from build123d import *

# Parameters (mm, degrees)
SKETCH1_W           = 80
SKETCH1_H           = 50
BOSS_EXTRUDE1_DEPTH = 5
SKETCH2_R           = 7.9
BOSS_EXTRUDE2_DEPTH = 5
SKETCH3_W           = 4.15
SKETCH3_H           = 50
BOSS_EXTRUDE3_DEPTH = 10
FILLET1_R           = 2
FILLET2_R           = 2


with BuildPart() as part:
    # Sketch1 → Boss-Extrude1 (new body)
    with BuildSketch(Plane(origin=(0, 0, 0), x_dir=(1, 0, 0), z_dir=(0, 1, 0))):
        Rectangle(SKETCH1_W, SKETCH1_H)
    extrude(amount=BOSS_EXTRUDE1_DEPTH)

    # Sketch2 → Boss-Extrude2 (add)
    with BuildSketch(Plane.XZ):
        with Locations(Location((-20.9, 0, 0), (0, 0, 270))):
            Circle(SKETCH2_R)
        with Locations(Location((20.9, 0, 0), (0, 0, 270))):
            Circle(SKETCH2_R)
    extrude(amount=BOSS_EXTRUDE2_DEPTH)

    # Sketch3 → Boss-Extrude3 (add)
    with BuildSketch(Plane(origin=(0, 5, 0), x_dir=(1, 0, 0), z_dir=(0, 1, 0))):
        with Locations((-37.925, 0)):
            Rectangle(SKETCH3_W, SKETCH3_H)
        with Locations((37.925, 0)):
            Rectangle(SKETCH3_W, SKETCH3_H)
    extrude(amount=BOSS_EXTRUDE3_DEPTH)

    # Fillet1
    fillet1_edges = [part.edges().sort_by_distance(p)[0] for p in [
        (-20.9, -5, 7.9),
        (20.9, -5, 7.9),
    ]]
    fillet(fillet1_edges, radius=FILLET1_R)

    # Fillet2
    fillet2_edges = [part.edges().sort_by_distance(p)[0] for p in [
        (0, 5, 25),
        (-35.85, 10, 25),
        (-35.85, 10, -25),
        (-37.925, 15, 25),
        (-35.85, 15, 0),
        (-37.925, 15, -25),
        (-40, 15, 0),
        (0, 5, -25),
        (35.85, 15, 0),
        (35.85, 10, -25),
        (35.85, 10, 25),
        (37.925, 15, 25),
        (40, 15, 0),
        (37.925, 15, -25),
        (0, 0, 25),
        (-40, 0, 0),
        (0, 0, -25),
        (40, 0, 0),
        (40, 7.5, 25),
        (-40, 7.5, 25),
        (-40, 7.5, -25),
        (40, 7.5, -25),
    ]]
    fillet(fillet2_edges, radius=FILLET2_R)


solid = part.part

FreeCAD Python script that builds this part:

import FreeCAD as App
import Part
import Sketcher

V = App.Vector
Q = App.Units.Quantity


def edges_at(feature, points):
    """Names of the edges that pass closest to the given points."""
    edges = feature.Shape.Edges
    near = lambda p: min(range(len(edges)), key=lambda i: edges[i].distToShape(Part.Vertex(*p))[0])
    return sorted({f"Edge{near(p) + 1}" for p in points})


def add_polygon(sketch, points):
    """Adds a closed chain of lines whose ends are joined by coincident constraints."""
    first, n = sketch.GeometryCount, len(points)
    for a, b in zip(points, points[1:] + points[:1]):
        sketch.addGeometry(Part.LineSegment(App.Vector(*a, 0), App.Vector(*b, 0)), False)
    for i in range(n):
        sketch.addConstraint(Sketcher.Constraint("Coincident", first + i, 2, first + (i + 1) % n, 1))

doc = App.newDocument("Part")
body = doc.addObject("PartDesign::Body", "Body")

# Sketch on XZ plane
sketch1 = body.newObject("Sketcher::SketchObject", "Sketch")
sketch1.AttachmentSupport = (doc.getObject("XZ_Plane"), [""])
sketch1.MapMode = "FlatFace"
add_polygon(sketch1, [(-40, -25), (-40, 25), (40, 25), (40, -25)])  # lines 0-3
sketch1.addConstraint([
    Sketcher.Constraint("Vertical", 0),
    Sketcher.Constraint("Horizontal", 1),
    Sketcher.Constraint("Vertical", 2),
    Sketcher.Constraint("Horizontal", 3),
    Sketcher.Constraint("Symmetric", 0, 2, 2, 2, -1, 1),
    Sketcher.Constraint("DistanceX", 1, 1, 1, 2, Q("80 mm")),
    Sketcher.Constraint("DistanceY", 0, 1, 0, 2, Q("50 mm")),
])
pad1 = body.newObject("PartDesign::Pad", "Pad")
pad1.Profile = sketch1
pad1.Length = 5
pad1.Reversed = True

# Sketch on XZ plane
sketch2 = body.newObject("Sketcher::SketchObject", "Sketch001")
sketch2.AttachmentSupport = (doc.getObject("XZ_Plane"), [""])
sketch2.MapMode = "FlatFace"
sketch2.addGeometry([
    Part.Circle(V(-20.9, 0, 0), V(0, 0, 1), 7.9),
    Part.Circle(V(20.9, 0, 0), V(0, 0, 1), 7.9),
], False)
sketch2.addConstraint([
    Sketcher.Constraint("Equal", 0, 1),
    Sketcher.Constraint("Symmetric", 0, 3, 1, 3, -1, 1),
    Sketcher.Constraint("PointOnObject", 0, 3, -1),
    Sketcher.Constraint("Diameter", 0, Q("15.8 mm")),
    Sketcher.Constraint("DistanceX", 0, 3, -1, 1, Q("20.9 mm")),
])
pad2 = body.newObject("PartDesign::Pad", "Pad001")
pad2.Profile = sketch2
pad2.Length = 5

# Sketch on XZ plane
sketch3 = body.newObject("Sketcher::SketchObject", "Sketch002")
sketch3.AttachmentSupport = (doc.getObject("XZ_Plane"), [""])
sketch3.MapMode = "FlatFace"
sketch3.AttachmentOffset = App.Placement(V(0, 0, -5), App.Rotation())
add_polygon(sketch3, [(-40, -25), (-40, 25), (-35.85, 25), (-35.85, -25)])  # lines 0-3
add_polygon(sketch3, [(35.85, -25), (35.85, 25), (40, 25), (40, -25)])  # lines 4-7
sketch3.addConstraint([
    Sketcher.Constraint("Vertical", 0),
    Sketcher.Constraint("Horizontal", 1),
    Sketcher.Constraint("Vertical", 2),
    Sketcher.Constraint("Horizontal", 3),
    Sketcher.Constraint("Vertical", 4),
    Sketcher.Constraint("Horizontal", 5),
    Sketcher.Constraint("Vertical", 6),
    Sketcher.Constraint("Horizontal", 7),
    Sketcher.Constraint("Symmetric", 2, 2, 4, 2, -1, 1),
    Sketcher.Constraint("Symmetric", 0, 2, 6, 2, -1, 1),
    Sketcher.Constraint("Horizontal", 1, 2, 4, 2),
    Sketcher.Constraint("DistanceY", 0, 1, 0, 2, Q("50 mm")),
    Sketcher.Constraint("DistanceX", 0, 2, -1, 1, Q("40 mm")),
    Sketcher.Constraint("DistanceX", 1, 1, 1, 2, Q("4.15 mm")),
])
pad3 = body.newObject("PartDesign::Pad", "Pad002")
pad3.Profile = sketch3
pad3.Length = 10
pad3.Reversed = True
doc.recompute()

fillet = body.newObject("PartDesign::Fillet", "Fillet")
fillet.Base = (pad3, edges_at(pad3, [(-20.9, -5, 7.9), (20.9, -5, 7.9)]))
fillet.Radius = 2
doc.recompute()

fillet2 = body.newObject("PartDesign::Fillet", "Fillet001")
fillet2.Base = (fillet, edges_at(fillet, [
    (0, 5, 25),
    (-35.85, 10, 25),
    (-35.85, 10, -25),
    (-37.925, 15, 25),
    (-35.85, 15, 0),
    (-37.925, 15, -25),
    (-40, 15, 0),
    (0, 5, -25),
    (35.85, 15, 0),
    (35.85, 10, -25),
    (35.85, 10, 25),
    (37.925, 15, 25),
    (40, 15, 0),
    (37.925, 15, -25),
    (0, 0, 25),
    (-40, 0, 0),
    (0, 0, -25),
    (40, 0, 0),
    (40, 7.5, 25),
    (-40, 7.5, 25),
    (-40, 7.5, -25),
    (40, 7.5, -25),
]))
fillet2.Radius = 2

doc.recompute()
